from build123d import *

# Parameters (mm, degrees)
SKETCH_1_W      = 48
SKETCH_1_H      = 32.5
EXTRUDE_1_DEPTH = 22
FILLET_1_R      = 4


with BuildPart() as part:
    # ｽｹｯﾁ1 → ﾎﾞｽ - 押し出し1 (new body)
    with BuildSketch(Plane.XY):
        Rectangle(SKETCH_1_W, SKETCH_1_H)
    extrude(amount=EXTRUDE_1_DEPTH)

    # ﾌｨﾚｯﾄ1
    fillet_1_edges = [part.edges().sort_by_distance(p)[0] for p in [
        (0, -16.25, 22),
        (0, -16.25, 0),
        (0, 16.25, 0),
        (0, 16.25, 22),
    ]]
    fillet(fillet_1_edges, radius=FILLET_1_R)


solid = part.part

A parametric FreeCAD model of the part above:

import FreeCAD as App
import Part
import Sketcher
from FreeCAD import Vector


def edges_at(feature, points):
    """Names of the edges that pass closest to the given points."""
    edges = feature.Shape.Edges
    near = lambda p: min(range(len(edges)), key=lambda i: edges[i].distToShape(Part.Vertex(*p))[0])
    return sorted({f"Edge{near(p) + 1}" for p in points})

doc = App.newDocument("Part")
params = doc.addObject("Spreadsheet::Sheet", "Params")
for row, (alias, value) in enumerate([
    ("sketch1_width", "48 mm"),
    ("sketch1_height", "32.5 mm"),
    ("pad1_length", "22 mm"),
    ("fillet_radius", "4 mm"),
], start=1):
    params.set(f"A{row}", alias)
    params.set(f"B{row}", "=" + value)
    params.setAlias(f"B{row}", alias)

body = doc.addObject("PartDesign::Body", "Body")

# Sketch on XY plane
sketch1 = doc.addObject("Sketcher::SketchObject", "Sketch")
body.addObject(sketch1)
sketch1.AttachmentSupport = (doc.XY_Plane, [""])
sketch1.MapMode = "FlatFace"
sketch1.addGeometry([
    Part.LineSegment(Vector(-24, 16, 0), Vector(-24, -16, 0)),
    Part.LineSegment(Vector(-24, -16, 0), Vector(24, -16, 0)),
    Part.LineSegment(Vector(24, -16, 0), Vector(24, 16, 0)),
    Part.LineSegment(Vector(24, 16, 0), Vector(-24, 16, 0)),
], False)
sketch1.addConstraint([
    Sketcher.Constraint("Coincident", 0, 2, 1, 1),
    Sketcher.Constraint("Coincident", 1, 2, 2, 1),
    Sketcher.Constraint("Coincident", 2, 2, 3, 1),
    Sketcher.Constraint("Coincident", 3, 2, 0, 1),
    Sketcher.Constraint("Vertical", 0),
    Sketcher.Constraint("Horizontal", 1),
    Sketcher.Constraint("Vertical", 2),
    Sketcher.Constraint("Horizontal", 3),
    Sketcher.Constraint("Symmetric", 0, 2, 2, 2, -1, 1),
    Sketcher.Constraint("DistanceX", 1, 1, 1, 2, 48.0),
    Sketcher.Constraint("DistanceY", 0, 2, 0, 1, 32.5),
])
sketch1.setExpression("Constraints[9]", "Params.sketch1_width")
sketch1.setExpression("Constraints[10]", "Params.sketch1_height")
pad1 = doc.addObject("PartDesign::Pad", "Pad")
body.addObject(pad1)
pad1.Profile = sketch1
pad1.setExpression("Length", "Params.pad1_length")
doc.recompute()

fillet = doc.addObject("PartDesign::Fillet", "Fillet")
body.addObject(fillet)
fillet.Base = (pad1, edges_at(pad1, [
    (0, -16.25, 22),
    (0, -16.25, 0),
    (0, 16.25, 0),
    (0, 16.25, 22),
]))
fillet.setExpression("Radius", "Params.fillet_radius")

doc.recompute()
